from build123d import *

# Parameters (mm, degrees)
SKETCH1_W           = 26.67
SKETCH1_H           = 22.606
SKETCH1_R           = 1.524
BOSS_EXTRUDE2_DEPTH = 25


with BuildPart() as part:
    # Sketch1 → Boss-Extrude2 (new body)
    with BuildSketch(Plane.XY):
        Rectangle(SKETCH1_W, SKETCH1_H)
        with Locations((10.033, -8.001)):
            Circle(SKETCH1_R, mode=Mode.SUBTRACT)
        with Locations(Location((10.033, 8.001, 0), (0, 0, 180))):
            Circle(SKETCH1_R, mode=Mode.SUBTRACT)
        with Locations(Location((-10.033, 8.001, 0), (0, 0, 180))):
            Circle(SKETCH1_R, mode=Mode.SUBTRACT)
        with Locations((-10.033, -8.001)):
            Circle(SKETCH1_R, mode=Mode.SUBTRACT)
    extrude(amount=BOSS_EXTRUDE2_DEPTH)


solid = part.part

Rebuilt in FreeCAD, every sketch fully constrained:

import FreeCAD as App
import Part
import Sketcher

V = App.Vector
Q = App.Units.Quantity

doc = App.newDocument("Part")
params = doc.addObject("Spreadsheet::Sheet", "Params")
for row, (alias, value) in enumerate([
    ("sketch1_diameter", "0.12 in"),
    ("sketch1_width", "1.05 in"),
    ("sketch1_height", "0.89 in"),
    ("pad1_length", "25 mm"),
], start=1):
    params.set(f"A{row}", alias)
    params.set(f"B{row}", "=" + value)
    params.setAlias(f"B{row}", alias)

body = doc.addObject("PartDesign::Body", "Body")

sketch1 = doc.addObject("Sketcher::SketchObject", "Sketch")
body.addObject(sketch1)
sketch1.AttachmentSupport = (doc.XY_Plane, [""])
sketch1.MapMode = "FlatFace"
sketch1.addGeometry([
    Part.LineSegment(V(-13.3, 11.3, 0), V(-13.3, -11.3, 0)),
    Part.LineSegment(V(-13.3, -11.3, 0), V(13.3, -11.3, 0)),
    Part.LineSegment(V(13.3, -11.3, 0), V(13.3, 11.3, 0)),
    Part.LineSegment(V(13.3, 11.3, 0), V(-13.3, 11.3, 0)),
    Part.Circle(V(-10, -8, 0), V(0, 0, 1), 1.5),
    Part.Circle(V(10, -8, 0), V(0, 0, 1), 1.5),
    Part.Circle(V(-10, 8, 0), V(0, 0, 1), 1.5),
    Part.Circle(V(10, 8, 0), V(0, 0, 1), 1.5),
], False)
sketch1.addConstraint([
    Sketcher.Constraint("Coincident", 0, 2, 1, 1),
    Sketcher.Constraint("Coincident", 1, 2, 2, 1),
    Sketcher.Constraint("Coincident", 2, 2, 3, 1),
    Sketcher.Constraint("Coincident", 3, 2, 0, 1),
    Sketcher.Constraint("Vertical", 0),
    Sketcher.Constraint("Horizontal", 1),
    Sketcher.Constraint("Vertical", 2),
    Sketcher.Constraint("Horizontal", 3),
    Sketcher.Constraint("Equal", 4, 5),
    Sketcher.Constraint("Equal", 5, 6),
    Sketcher.Constraint("Equal", 6, 7),
    Sketcher.Constraint("Symmetric", 5, 3, 6, 3, -1, 1),
    Sketcher.Constraint("Symmetric", 4, 3, 7, 3, -1, 1),
    Sketcher.Constraint("Symmetric", 0, 2, 2, 2, -1, 1),
    Sketcher.Constraint("Symmetric", 4, 3, 5, 3, -2),
    Sketcher.Constraint("Diameter", 4, Q("0.12 in")),
    Sketcher.Constraint("DistanceX", 1, 1, 1, 2, Q("1.05 in")),
    Sketcher.Constraint("DistanceY", 0, 2, 0, 1, Q("0.89 in")),
    Sketcher.Constraint("DistanceX", 4, 3, 5, 3, Q("0.79 in")),
    Sketcher.Constraint("DistanceY", 4, 3, 6, 3, Q("0.63 in")),
])
sketch1.setExpression("Constraints[15]", "Params.sketch1_diameter")
sketch1.setExpression("Constraints[16]", "Params.sketch1_width")
sketch1.setExpression("Constraints[17]", "Params.sketch1_height")
pad1 = doc.addObject("PartDesign::Pad", "Pad")
body.addObject(pad1)
pad1.Profile = sketch1
pad1.setExpression("Length", "Params.pad1_length")

doc.recompute()
